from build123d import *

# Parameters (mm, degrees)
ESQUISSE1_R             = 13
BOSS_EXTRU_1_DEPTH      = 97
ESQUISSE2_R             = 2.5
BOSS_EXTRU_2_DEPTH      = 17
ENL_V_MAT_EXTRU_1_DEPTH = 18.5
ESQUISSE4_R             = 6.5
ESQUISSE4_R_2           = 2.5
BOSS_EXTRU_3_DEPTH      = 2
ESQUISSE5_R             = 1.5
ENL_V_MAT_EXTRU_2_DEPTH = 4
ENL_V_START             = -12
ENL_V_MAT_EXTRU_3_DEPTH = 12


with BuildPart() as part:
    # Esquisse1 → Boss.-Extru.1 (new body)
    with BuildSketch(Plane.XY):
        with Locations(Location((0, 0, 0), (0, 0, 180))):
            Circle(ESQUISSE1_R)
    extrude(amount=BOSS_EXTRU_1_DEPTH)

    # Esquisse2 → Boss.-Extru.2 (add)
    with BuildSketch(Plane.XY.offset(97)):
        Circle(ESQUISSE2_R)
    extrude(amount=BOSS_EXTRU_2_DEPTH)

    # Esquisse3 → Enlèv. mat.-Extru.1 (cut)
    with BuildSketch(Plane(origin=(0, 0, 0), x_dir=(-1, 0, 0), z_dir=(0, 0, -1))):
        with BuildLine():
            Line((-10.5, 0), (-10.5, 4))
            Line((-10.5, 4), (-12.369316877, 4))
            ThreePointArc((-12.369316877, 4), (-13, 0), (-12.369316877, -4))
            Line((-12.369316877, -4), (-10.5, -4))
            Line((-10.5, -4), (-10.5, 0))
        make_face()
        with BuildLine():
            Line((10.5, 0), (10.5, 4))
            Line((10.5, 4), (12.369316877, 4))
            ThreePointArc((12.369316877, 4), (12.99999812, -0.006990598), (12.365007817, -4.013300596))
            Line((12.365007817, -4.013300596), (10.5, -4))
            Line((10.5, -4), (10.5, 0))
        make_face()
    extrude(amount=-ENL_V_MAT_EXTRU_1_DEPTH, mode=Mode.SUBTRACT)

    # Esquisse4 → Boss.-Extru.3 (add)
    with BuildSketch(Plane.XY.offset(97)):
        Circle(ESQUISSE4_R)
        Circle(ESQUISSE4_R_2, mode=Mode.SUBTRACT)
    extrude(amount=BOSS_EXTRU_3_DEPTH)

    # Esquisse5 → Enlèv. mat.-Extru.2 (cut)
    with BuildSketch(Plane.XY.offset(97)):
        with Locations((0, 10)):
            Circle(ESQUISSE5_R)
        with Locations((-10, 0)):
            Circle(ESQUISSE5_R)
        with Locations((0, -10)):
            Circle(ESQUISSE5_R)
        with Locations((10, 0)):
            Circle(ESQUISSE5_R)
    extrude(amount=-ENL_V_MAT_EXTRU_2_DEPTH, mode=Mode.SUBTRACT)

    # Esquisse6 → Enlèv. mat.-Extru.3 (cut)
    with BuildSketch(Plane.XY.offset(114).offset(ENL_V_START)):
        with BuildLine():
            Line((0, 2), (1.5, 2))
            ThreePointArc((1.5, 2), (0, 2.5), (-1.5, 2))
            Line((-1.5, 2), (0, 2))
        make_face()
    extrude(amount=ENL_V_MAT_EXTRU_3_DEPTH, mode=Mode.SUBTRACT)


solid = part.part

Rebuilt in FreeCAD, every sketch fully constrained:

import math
import FreeCAD as App
import Part
import Sketcher

doc = App.newDocument("Part")
body = doc.addObject("PartDesign::Body", "Body")

# Sketch on XY plane
sketch1 = body.newObject("Sketcher::SketchObject", "Sketch")
sketch1.AttachmentSupport = (doc.getObject("XY_Plane"), [""])
sketch1.MapMode = "FlatFace"
sketch1.addGeometry(Part.Circle(App.Vector(0, 0, 0), App.Vector(0, 0, 1), 13), False)
sketch1.addConstraint(Sketcher.Constraint("Coincident", 0, 3, -1, 1))
sketch1.addConstraint(Sketcher.Constraint("Diameter", 0, 26.0))
pad1 = body.newObject("PartDesign::Pad", "Pad")
pad1.Profile = sketch1
pad1.Length = 97

# Sketch on XY plane
sketch2 = body.newObject("Sketcher::SketchObject", "Sketch001")
sketch2.AttachmentSupport = (doc.getObject("XY_Plane"), [""])
sketch2.MapMode = "FlatFace"
sketch2.AttachmentOffset = App.Placement(App.Vector(0, 0, 97), App.Rotation())
sketch2.addGeometry(Part.Circle(App.Vector(0, 0, 0), App.Vector(0, 0, 1), 2.5), False)
sketch2.addConstraint(Sketcher.Constraint("Coincident", 0, 3, -1, 1))
sketch2.addConstraint(Sketcher.Constraint("Diameter", 0, 5.0))
pad2 = body.newObject("PartDesign::Pad", "Pad001")
pad2.Profile = sketch2
pad2.Length = 17

# Sketch on XY plane
sketch3 = body.newObject("Sketcher::SketchObject", "Sketch002")
sketch3.AttachmentSupport = (doc.getObject("XY_Plane"), [""])
sketch3.MapMode = "FlatFace"
sketch3.addGeometry(Part.LineSegment(App.Vector(10.5, 4, 0), App.Vector(12.369317, 4, 0)), False)
sketch3.addGeometry(Part.ArcOfCircle(Part.Circle(App.Vector(0, 0, 0), App.Vector(0, 0, 1), 13), math.radians(-17.920213), math.radians(17.920213)), False)
sketch3.addGeometry(Part.LineSegment(App.Vector(12.369317, -4, 0), App.Vector(10.5, -4, 0)), False)
sketch3.addGeometry(Part.LineSegment(App.Vector(10.5, -4, 0), App.Vector(10.5, 4, 0)), False)
sketch3.addGeometry(Part.LineSegment(App.Vector(-12.369317, 4, 0), App.Vector(-10.5, 4, 0)), False)
sketch3.addGeometry(Part.LineSegment(App.Vector(-10.5, 4, 0), App.Vector(-10.5, -4, 0)), False)
sketch3.addGeometry(Part.LineSegment(App.Vector(-10.5, -4, 0), App.Vector(-12.365008, -4.013301, 0)), False)
sketch3.addGeometry(Part.ArcOfCircle(Part.Circle(App.Vector(0, 0, 0), App.Vector(0, 0, 1), 13), math.radians(162.079787), math.radians(197.981833)), False)
sketch3.addConstraint(Sketcher.Constraint("Coincident", 0, 2, 1, 2))
sketch3.addConstraint(Sketcher.Constraint("Coincident", 1, 1, 2, 1))
sketch3.addConstraint(Sketcher.Constraint("Coincident", 2, 2, 3, 1))
sketch3.addConstraint(Sketcher.Constraint("Coincident", 3, 2, 0, 1))
sketch3.addConstraint(Sketcher.Constraint("Coincident", 4, 2, 5, 1))
sketch3.addConstraint(Sketcher.Constraint("Coincident", 5, 2, 6, 1))
sketch3.addConstraint(Sketcher.Constraint("Coincident", 6, 2, 7, 2))
sketch3.addConstraint(Sketcher.Constraint("Coincident", 7, 1, 4, 1))
sketch3.addConstraint(Sketcher.Constraint("Horizontal", 0))
sketch3.addConstraint(Sketcher.Constraint("Horizontal", 2))
sketch3.addConstraint(Sketcher.Constraint("Vertical", 3))
sketch3.addConstraint(Sketcher.Constraint("Horizontal", 4))
sketch3.addConstraint(Sketcher.Constraint("Vertical", 5))
sketch3.addConstraint(Sketcher.Constraint("Coincident", 1, 3, -1, 1))
sketch3.addConstraint(Sketcher.Constraint("Coincident", 7, 3, -1, 1))
sketch3.addConstraint(Sketcher.Constraint("Equal", 1, 7))
sketch3.addConstraint(Sketcher.Constraint("Symmetric", 2, 2, 4, 2, -1, 1))
sketch3.addConstraint(Sketcher.Constraint("Horizontal", 3, 2, 4, 2))
sketch3.addConstraint(Sketcher.Constraint("Horizontal", 2, 2, 5, 2))
sketch3.addConstraint(Sketcher.Constraint("Radius", 1, 13.0))
sketch3.addConstraint(Sketcher.Constraint("DistanceY", 3, 1, 3, 2, 8.0))
sketch3.addConstraint(Sketcher.Constraint("DistanceX", 4, 2, 3, 2, 21.0))
sketch3.addConstraint(Sketcher.Constraint("DistanceY", 6, 2, -1, 1, 4.013301))
pocket1 = body.newObject("PartDesign::Pocket", "Pocket")
pocket1.Profile = sketch3
pocket1.Length = 18.5
pocket1.Reversed = True

# Sketch on XY plane
sketch4 = body.newObject("Sketcher::SketchObject", "Sketch003")
sketch4.AttachmentSupport = (doc.getObject("XY_Plane"), [""])
sketch4.MapMode = "FlatFace"
sketch4.AttachmentOffset = App.Placement(App.Vector(0, 0, 97), App.Rotation())
sketch4.addGeometry(Part.Circle(App.Vector(0, 0, 0), App.Vector(0, 0, 1), 6.5), False)
sketch4.addGeometry(Part.Circle(App.Vector(0, 0, 0), App.Vector(0, 0, 1), 2.5), False)
sketch4.addConstraint(Sketcher.Constraint("Coincident", 0, 3, -1, 1))
sketch4.addConstraint(Sketcher.Constraint("Coincident", 1, 3, -1, 1))
sketch4.addConstraint(Sketcher.Constraint("Diameter", 0, 13.0))
sketch4.addConstraint(Sketcher.Constraint("Diameter", 1, 5.0))
pad3 = body.newObject("PartDesign::Pad", "Pad002")
pad3.Profile = sketch4
pad3.Length = 2

# Sketch on XY plane
sketch5 = body.newObject("Sketcher::SketchObject", "Sketch004")
sketch5.AttachmentSupport = (doc.getObject("XY_Plane"), [""])
sketch5.MapMode = "FlatFace"
sketch5.AttachmentOffset = App.Placement(App.Vector(0, 0, 97), App.Rotation())
sketch5.addGeometry(Part.Circle(App.Vector(0, 10, 0), App.Vector(0, 0, 1), 1.5), False)
sketch5.addGeometry(Part.Circle(App.Vector(-10, 0, 0), App.Vector(0, 0, 1), 1.5), False)
sketch5.addGeometry(Part.Circle(App.Vector(0, -10, 0), App.Vector(0, 0, 1), 1.5), False)
sketch5.addGeometry(Part.Circle(App.Vector(10, 0, 0), App.Vector(0, 0, 1), 1.5), False)
sketch5.addConstraint(Sketcher.Constraint("Equal", 0, 1))
sketch5.addConstraint(Sketcher.Constraint("Equal", 1, 2))
sketch5.addConstraint(Sketcher.Constraint("Equal", 2, 3))
sketch5.addConstraint(Sketcher.Constraint("Symmetric", 0, 3, 2, 3, -1, 1))
sketch5.addConstraint(Sketcher.Constraint("Symmetric", 1, 3, 3, 3, -1, 1))
sketch5.addConstraint(Sketcher.Constraint("PointOnObject", 0, 3, -2))
sketch5.addConstraint(Sketcher.Constraint("PointOnObject", 1, 3, -1))
sketch5.addConstraint(Sketcher.Constraint("Diameter", 0, 3.0))
sketch5.addConstraint(Sketcher.Constraint("DistanceY", -1, 1, 0, 3, 10.0))
sketch5.addConstraint(Sketcher.Constraint("DistanceX", 1, 3, -1, 1, 10.0))
pocket2 = body.newObject("PartDesign::Pocket", "Pocket001")
pocket2.Profile = sketch5
pocket2.Length = 4

# Sketch on XY plane
sketch6 = body.newObject("Sketcher::SketchObject", "Sketch005")
sketch6.AttachmentSupport = (doc.getObject("XY_Plane"), [""])
sketch6.MapMode = "FlatFace"
sketch6.AttachmentOffset = App.Placement(App.Vector(0, 0, 102), App.Rotation())
sketch6.addGeometry(Part.ArcOfCircle(Part.Circle(App.Vector(0, 0, 0), App.Vector(0, 0, 1), 2.5), math.radians(53.130102), math.radians(126.869898)), False)
sketch6.addGeometry(Part.LineSegment(App.Vector(-1.5, 2, 0), App.Vector(1.5, 2, 0)), False)
sketch6.addConstraint(Sketcher.Constraint("Coincident", 0, 1, 1, 2))
sketch6.addConstraint(Sketcher.Constraint("Coincident", 1, 1, 0, 2))
sketch6.addConstraint(Sketcher.Constraint("Horizontal", 1))
sketch6.addConstraint(Sketcher.Constraint("Coincident", 0, 3, -1, 1))
sketch6.addConstraint(Sketcher.Constraint("Radius", 0, 2.5))
sketch6.addConstraint(Sketcher.Constraint("DistanceX", 1, 1, 1, 2, 3.0))
pocket3 = body.newObject("PartDesign::Pocket", "Pocket002")
pocket3.Profile = sketch6
pocket3.Length = 12
pocket3.Reversed = True

doc.recompute()
